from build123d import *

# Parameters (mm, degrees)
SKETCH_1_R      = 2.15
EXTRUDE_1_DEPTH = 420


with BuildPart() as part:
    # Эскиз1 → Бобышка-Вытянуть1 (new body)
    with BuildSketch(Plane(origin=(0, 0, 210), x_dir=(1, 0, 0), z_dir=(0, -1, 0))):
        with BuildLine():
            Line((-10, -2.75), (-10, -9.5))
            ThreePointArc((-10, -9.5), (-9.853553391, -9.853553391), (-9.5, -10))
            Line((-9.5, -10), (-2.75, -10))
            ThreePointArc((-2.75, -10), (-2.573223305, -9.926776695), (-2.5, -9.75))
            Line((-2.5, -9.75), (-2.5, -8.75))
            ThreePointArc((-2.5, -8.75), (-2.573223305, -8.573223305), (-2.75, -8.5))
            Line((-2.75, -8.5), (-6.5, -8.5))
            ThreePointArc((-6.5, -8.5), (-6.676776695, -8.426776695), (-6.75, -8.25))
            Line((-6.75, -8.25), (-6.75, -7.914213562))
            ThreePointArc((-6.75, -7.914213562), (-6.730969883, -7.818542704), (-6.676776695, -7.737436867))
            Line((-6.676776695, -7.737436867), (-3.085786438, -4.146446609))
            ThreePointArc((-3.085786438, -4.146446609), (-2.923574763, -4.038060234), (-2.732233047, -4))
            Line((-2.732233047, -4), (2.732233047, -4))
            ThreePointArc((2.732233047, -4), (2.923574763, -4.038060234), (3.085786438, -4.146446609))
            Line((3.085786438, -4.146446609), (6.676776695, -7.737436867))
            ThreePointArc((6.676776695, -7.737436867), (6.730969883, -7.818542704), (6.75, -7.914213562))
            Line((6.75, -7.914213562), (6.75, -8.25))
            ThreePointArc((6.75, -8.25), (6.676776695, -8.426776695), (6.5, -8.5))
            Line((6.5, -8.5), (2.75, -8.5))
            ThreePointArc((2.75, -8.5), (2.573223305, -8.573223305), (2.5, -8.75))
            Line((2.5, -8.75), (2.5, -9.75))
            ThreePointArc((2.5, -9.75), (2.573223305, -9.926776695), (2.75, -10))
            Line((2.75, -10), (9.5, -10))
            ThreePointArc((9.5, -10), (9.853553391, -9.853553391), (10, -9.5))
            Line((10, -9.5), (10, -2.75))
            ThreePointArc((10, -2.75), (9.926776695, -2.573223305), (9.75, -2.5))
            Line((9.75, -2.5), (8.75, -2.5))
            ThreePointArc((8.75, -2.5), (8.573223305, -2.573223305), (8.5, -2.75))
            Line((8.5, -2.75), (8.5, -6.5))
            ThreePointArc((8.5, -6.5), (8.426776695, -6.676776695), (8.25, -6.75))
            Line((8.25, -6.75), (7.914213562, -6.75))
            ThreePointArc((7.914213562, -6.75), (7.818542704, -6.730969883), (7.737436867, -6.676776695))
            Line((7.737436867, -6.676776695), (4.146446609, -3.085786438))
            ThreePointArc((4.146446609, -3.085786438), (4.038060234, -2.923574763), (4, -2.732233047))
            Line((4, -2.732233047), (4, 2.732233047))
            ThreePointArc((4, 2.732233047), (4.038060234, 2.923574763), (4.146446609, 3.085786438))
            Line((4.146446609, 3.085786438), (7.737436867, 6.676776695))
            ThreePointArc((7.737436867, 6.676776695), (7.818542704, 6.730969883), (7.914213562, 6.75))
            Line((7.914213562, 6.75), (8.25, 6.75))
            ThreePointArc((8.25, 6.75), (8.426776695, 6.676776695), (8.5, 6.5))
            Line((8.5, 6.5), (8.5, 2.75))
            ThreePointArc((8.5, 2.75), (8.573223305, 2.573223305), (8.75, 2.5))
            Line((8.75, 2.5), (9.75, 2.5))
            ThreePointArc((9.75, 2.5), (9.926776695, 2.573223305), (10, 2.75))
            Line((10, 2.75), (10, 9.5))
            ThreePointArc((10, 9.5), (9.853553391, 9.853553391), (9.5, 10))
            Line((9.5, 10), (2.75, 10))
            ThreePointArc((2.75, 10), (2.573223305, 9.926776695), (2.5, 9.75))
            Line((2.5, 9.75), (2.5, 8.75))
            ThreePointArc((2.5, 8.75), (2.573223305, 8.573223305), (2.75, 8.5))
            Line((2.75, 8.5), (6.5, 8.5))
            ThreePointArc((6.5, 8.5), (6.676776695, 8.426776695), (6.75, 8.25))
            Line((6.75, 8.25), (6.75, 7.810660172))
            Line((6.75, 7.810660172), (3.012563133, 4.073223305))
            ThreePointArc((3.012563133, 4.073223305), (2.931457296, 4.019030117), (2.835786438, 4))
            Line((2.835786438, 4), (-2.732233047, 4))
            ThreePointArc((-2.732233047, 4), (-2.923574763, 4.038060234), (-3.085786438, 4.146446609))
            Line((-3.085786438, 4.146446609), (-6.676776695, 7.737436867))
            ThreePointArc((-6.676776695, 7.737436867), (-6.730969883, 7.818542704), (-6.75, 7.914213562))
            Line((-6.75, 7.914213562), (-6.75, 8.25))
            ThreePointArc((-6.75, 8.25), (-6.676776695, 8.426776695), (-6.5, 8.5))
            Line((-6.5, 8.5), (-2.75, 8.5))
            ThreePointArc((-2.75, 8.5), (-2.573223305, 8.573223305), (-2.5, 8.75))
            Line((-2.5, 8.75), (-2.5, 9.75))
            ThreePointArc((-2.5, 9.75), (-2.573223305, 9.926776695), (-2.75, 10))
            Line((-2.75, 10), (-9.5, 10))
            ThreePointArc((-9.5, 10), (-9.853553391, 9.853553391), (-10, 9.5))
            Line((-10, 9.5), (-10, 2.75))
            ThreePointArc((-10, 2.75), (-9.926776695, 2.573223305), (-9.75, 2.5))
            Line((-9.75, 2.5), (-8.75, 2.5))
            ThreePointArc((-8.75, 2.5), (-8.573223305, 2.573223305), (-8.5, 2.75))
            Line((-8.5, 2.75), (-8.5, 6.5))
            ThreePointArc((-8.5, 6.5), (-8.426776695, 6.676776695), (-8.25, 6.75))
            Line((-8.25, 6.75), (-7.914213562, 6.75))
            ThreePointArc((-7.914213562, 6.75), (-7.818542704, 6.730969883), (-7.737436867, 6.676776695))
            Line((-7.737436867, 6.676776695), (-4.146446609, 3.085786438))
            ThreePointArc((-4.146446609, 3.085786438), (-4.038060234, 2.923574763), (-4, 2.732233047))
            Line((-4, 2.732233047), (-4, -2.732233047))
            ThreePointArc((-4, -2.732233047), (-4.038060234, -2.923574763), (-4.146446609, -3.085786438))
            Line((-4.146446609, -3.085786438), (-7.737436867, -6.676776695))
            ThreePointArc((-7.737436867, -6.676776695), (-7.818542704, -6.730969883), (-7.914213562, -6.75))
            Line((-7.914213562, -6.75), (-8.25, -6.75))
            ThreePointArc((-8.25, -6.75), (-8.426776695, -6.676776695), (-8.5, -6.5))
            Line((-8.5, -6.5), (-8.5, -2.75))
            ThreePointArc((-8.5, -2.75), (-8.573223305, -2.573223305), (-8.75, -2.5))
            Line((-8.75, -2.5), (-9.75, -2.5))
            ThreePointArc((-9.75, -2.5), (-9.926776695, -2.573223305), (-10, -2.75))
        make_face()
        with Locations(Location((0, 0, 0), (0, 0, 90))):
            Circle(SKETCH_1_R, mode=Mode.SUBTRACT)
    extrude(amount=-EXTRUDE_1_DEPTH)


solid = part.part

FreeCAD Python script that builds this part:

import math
import FreeCAD as App
import Part
import Sketcher
from FreeCAD import Vector
Q = App.Units.Quantity

doc = App.newDocument("Part")
body = doc.addObject("PartDesign::Body", "Body")

# Sketch on XZ plane
sketch1 = doc.addObject("Sketcher::SketchObject", "Sketch")
body.addObject(sketch1)
sketch1.AttachmentSupport = (doc.XZ_Plane, [""])
sketch1.MapMode = "FlatFace"
sketch1.addGeometry(Part.LineSegment(Vector(-10, 207.25, 0), Vector(-10, 200.5, 0)), False)
sketch1.addGeometry(Part.ArcOfCircle(Part.Circle(Vector(-9.5, 200.5, 0), Vector(0, 0, 1), 0.5), math.radians(180), math.radians(270)), False)
sketch1.addGeometry(Part.LineSegment(Vector(-9.5, 200, 0), Vector(-2.75, 200, 0)), False)
sketch1.addGeometry(Part.ArcOfCircle(Part.Circle(Vector(-2.75, 200.25, 0), Vector(0, 0, 1), 0.25), math.radians(-90), math.radians(0)), False)
sketch1.addGeometry(Part.LineSegment(Vector(-2.5, 200.25, 0), Vector(-2.5, 201.25, 0)), False)
sketch1.addGeometry(Part.ArcOfCircle(Part.Circle(Vector(-2.75, 201.25, 0), Vector(0, 0, 1), 0.25), math.radians(0), math.radians(90)), False)
sketch1.addGeometry(Part.LineSegment(Vector(-2.75, 201.5, 0), Vector(-6.5, 201.5, 0)), False)
sketch1.addGeometry(Part.ArcOfCircle(Part.Circle(Vector(-6.5, 201.75, 0), Vector(0, 0, 1), 0.25), math.radians(-180), math.radians(-90)), False)
sketch1.addGeometry(Part.LineSegment(Vector(-6.75, 201.75, 0), Vector(-6.75, 202.085786, 0)), False)
sketch1.addGeometry(Part.ArcOfCircle(Part.Circle(Vector(-6.5, 202.085786, 0), Vector(0, 0, 1), 0.25), math.radians(135), math.radians(180)), False)
sketch1.addGeometry(Part.LineSegment(Vector(-6.676777, 202.262563, 0), Vector(-3.085786, 205.853553, 0)), False)
sketch1.addGeometry(Part.ArcOfCircle(Part.Circle(Vector(-2.732233, 205.5, 0), Vector(0, 0, 1), 0.5), math.radians(90), math.radians(135)), False)
sketch1.addGeometry(Part.LineSegment(Vector(-2.732233, 206, 0), Vector(2.732233, 206, 0)), False)
sketch1.addGeometry(Part.ArcOfCircle(Part.Circle(Vector(2.732233, 205.5, 0), Vector(0, 0, 1), 0.5), math.radians(45), math.radians(90)), False)
sketch1.addGeometry(Part.LineSegment(Vector(3.085786, 205.853553, 0), Vector(6.676777, 202.262563, 0)), False)
sketch1.addGeometry(Part.ArcOfCircle(Part.Circle(Vector(6.5, 202.085786, 0), Vector(0, 0, 1), 0.25), math.radians(0), math.radians(45)), False)
sketch1.addGeometry(Part.LineSegment(Vector(6.75, 202.085786, 0), Vector(6.75, 201.75, 0)), False)
sketch1.addGeometry(Part.ArcOfCircle(Part.Circle(Vector(6.5, 201.75, 0), Vector(0, 0, 1), 0.25), math.radians(-90), math.radians(0)), False)
sketch1.addGeometry(Part.LineSegment(Vector(6.5, 201.5, 0), Vector(2.75, 201.5, 0)), False)
sketch1.addGeometry(Part.ArcOfCircle(Part.Circle(Vector(2.75, 201.25, 0), Vector(0, 0, 1), 0.25), math.radians(90), math.radians(180)), False)
sketch1.addGeometry(Part.LineSegment(Vector(2.5, 201.25, 0), Vector(2.5, 200.25, 0)), False)
sketch1.addGeometry(Part.ArcOfCircle(Part.Circle(Vector(2.75, 200.25, 0), Vector(0, 0, 1), 0.25), math.radians(-180), math.radians(-90)), False)
sketch1.addGeometry(Part.LineSegment(Vector(2.75, 200, 0), Vector(9.5, 200, 0)), False)
sketch1.addGeometry(Part.ArcOfCircle(Part.Circle(Vector(9.5, 200.5, 0), Vector(0, 0, 1), 0.5), math.radians(-90), math.radians(0)), False)
sketch1.addGeometry(Part.LineSegment(Vector(10, 200.5, 0), Vector(10, 207.25, 0)), False)
sketch1.addGeometry(Part.ArcOfCircle(Part.Circle(Vector(9.75, 207.25, 0), Vector(0, 0, 1), 0.25), math.radians(0), math.radians(90)), False)
sketch1.addGeometry(Part.LineSegment(Vector(9.75, 207.5, 0), Vector(8.75, 207.5, 0)), False)
sketch1.addGeometry(Part.ArcOfCircle(Part.Circle(Vector(8.75, 207.25, 0), Vector(0, 0, 1), 0.25), math.radians(90), math.radians(180)), False)
sketch1.addGeometry(Part.LineSegment(Vector(8.5, 207.25, 0), Vector(8.5, 203.5, 0)), False)
sketch1.addGeometry(Part.ArcOfCircle(Part.Circle(Vector(8.25, 203.5, 0), Vector(0, 0, 1), 0.25), math.radians(-90), math.radians(0)), False)
sketch1.addGeometry(Part.LineSegment(Vector(8.25, 203.25, 0), Vector(7.914214, 203.25, 0)), False)
sketch1.addGeometry(Part.ArcOfCircle(Part.Circle(Vector(7.914214, 203.5, 0), Vector(0, 0, 1), 0.25), math.radians(-135), math.radians(-90)), False)
sketch1.addGeometry(Part.LineSegment(Vector(7.737437, 203.323223, 0), Vector(4.146447, 206.914214, 0)), False)
sketch1.addGeometry(Part.ArcOfCircle(Part.Circle(Vector(4.5, 207.267767, 0), Vector(0, 0, 1), 0.5), math.radians(-180), math.radians(-135)), False)
sketch1.addGeometry(Part.LineSegment(Vector(4, 207.267767, 0), Vector(4, 212.732233, 0)), False)
sketch1.addGeometry(Part.ArcOfCircle(Part.Circle(Vector(4.5, 212.732233, 0), Vector(0, 0, 1), 0.5), math.radians(135), math.radians(180)), False)
sketch1.addGeometry(Part.LineSegment(Vector(4.146447, 213.085786, 0), Vector(7.737437, 216.676777, 0)), False)
sketch1.addGeometry(Part.ArcOfCircle(Part.Circle(Vector(7.914214, 216.5, 0), Vector(0, 0, 1), 0.25), math.radians(90), math.radians(135)), False)
sketch1.addGeometry(Part.LineSegment(Vector(7.914214, 216.75, 0), Vector(8.25, 216.75, 0)), False)
sketch1.addGeometry(Part.ArcOfCircle(Part.Circle(Vector(8.25, 216.5, 0), Vector(0, 0, 1), 0.25), math.radians(0), math.radians(90)), False)
sketch1.addGeometry(Part.LineSegment(Vector(8.5, 216.5, 0), Vector(8.5, 212.75, 0)), False)
sketch1.addGeometry(Part.ArcOfCircle(Part.Circle(Vector(8.75, 212.75, 0), Vector(0, 0, 1), 0.25), math.radians(-180), math.radians(-90)), False)
sketch1.addGeometry(Part.LineSegment(Vector(8.75, 212.5, 0), Vector(9.75, 212.5, 0)), False)
sketch1.addGeometry(Part.ArcOfCircle(Part.Circle(Vector(9.75, 212.75, 0), Vector(0, 0, 1), 0.25), math.radians(-90), math.radians(0)), False)
sketch1.addGeometry(Part.LineSegment(Vector(10, 212.75, 0), Vector(10, 219.5, 0)), False)
sketch1.addGeometry(Part.ArcOfCircle(Part.Circle(Vector(9.5, 219.5, 0), Vector(0, 0, 1), 0.5), math.radians(0), math.radians(90)), False)
sketch1.addGeometry(Part.LineSegment(Vector(9.5, 220, 0), Vector(2.75, 220, 0)), False)
sketch1.addGeometry(Part.ArcOfCircle(Part.Circle(Vector(2.75, 219.75, 0), Vector(0, 0, 1), 0.25), math.radians(90), math.radians(180)), False)
sketch1.addGeometry(Part.LineSegment(Vector(2.5, 219.75, 0), Vector(2.5, 218.75, 0)), False)
sketch1.addGeometry(Part.ArcOfCircle(Part.Circle(Vector(2.75, 218.75, 0), Vector(0, 0, 1), 0.25), math.radians(-180), math.radians(-90)), False)
sketch1.addGeometry(Part.LineSegment(Vector(2.75, 218.5, 0), Vector(6.5, 218.5, 0)), False)
sketch1.addGeometry(Part.ArcOfCircle(Part.Circle(Vector(6.5, 218.25, 0), Vector(0, 0, 1), 0.25), math.radians(0), math.radians(90)), False)
sketch1.addGeometry(Part.LineSegment(Vector(6.75, 218.25, 0), Vector(6.75, 217.81066, 0)), False)
sketch1.addGeometry(Part.LineSegment(Vector(6.75, 217.81066, 0), Vector(3.012563, 214.073223, 0)), False)
sketch1.addGeometry(Part.ArcOfCircle(Part.Circle(Vector(2.835786, 214.25, 0), Vector(0, 0, 1), 0.25), math.radians(-90), math.radians(-45)), False)
sketch1.addGeometry(Part.LineSegment(Vector(2.835786, 214, 0), Vector(-2.732233, 214, 0)), False)
sketch1.addGeometry(Part.ArcOfCircle(Part.Circle(Vector(-2.732233, 214.5, 0), Vector(0, 0, 1), 0.5), math.radians(-135), math.radians(-90)), False)
sketch1.addGeometry(Part.LineSegment(Vector(-3.085786, 214.146447, 0), Vector(-6.676777, 217.737437, 0)), False)
sketch1.addGeometry(Part.ArcOfCircle(Part.Circle(Vector(-6.5, 217.914214, 0), Vector(0, 0, 1), 0.25), math.radians(180), math.radians(225)), False)
sketch1.addGeometry(Part.LineSegment(Vector(-6.75, 217.914214, 0), Vector(-6.75, 218.25, 0)), False)
sketch1.addGeometry(Part.ArcOfCircle(Part.Circle(Vector(-6.5, 218.25, 0), Vector(0, 0, 1), 0.25), math.radians(90), math.radians(180)), False)
sketch1.addGeometry(Part.LineSegment(Vector(-6.5, 218.5, 0), Vector(-2.75, 218.5, 0)), False)
sketch1.addGeometry(Part.ArcOfCircle(Part.Circle(Vector(-2.75, 218.75, 0), Vector(0, 0, 1), 0.25), math.radians(-90), math.radians(0)), False)
sketch1.addGeometry(Part.LineSegment(Vector(-2.5, 218.75, 0), Vector(-2.5, 219.75, 0)), False)
sketch1.addGeometry(Part.ArcOfCircle(Part.Circle(Vector(-2.75, 219.75, 0), Vector(0, 0, 1), 0.25), math.radians(0), math.radians(90)), False)
sketch1.addGeometry(Part.LineSegment(Vector(-2.75, 220, 0), Vector(-9.5, 220, 0)), False)
sketch1.addGeometry(Part.ArcOfCircle(Part.Circle(Vector(-9.5, 219.5, 0), Vector(0, 0, 1), 0.5), math.radians(90), math.radians(180)), False)
sketch1.addGeometry(Part.LineSegment(Vector(-10, 219.5, 0), Vector(-10, 212.75, 0)), False)
sketch1.addGeometry(Part.ArcOfCircle(Part.Circle(Vector(-9.75, 212.75, 0), Vector(0, 0, 1), 0.25), math.radians(-180), math.radians(-90)), False)
sketch1.addGeometry(Part.LineSegment(Vector(-9.75, 212.5, 0), Vector(-8.75, 212.5, 0)), False)
sketch1.addGeometry(Part.ArcOfCircle(Part.Circle(Vector(-8.75, 212.75, 0), Vector(0, 0, 1), 0.25), math.radians(-90), math.radians(0)), False)
sketch1.addGeometry(Part.LineSegment(Vector(-8.5, 212.75, 0), Vector(-8.5, 216.5, 0)), False)
sketch1.addGeometry(Part.ArcOfCircle(Part.Circle(Vector(-8.25, 216.5, 0), Vector(0, 0, 1), 0.25), math.radians(90), math.radians(180)), False)
sketch1.addGeometry(Part.LineSegment(Vector(-8.25, 216.75, 0), Vector(-7.914214, 216.75, 0)), False)
sketch1.addGeometry(Part.ArcOfCircle(Part.Circle(Vector(-7.914214, 216.5, 0), Vector(0, 0, 1), 0.25), math.radians(45), math.radians(90)), False)
sketch1.addGeometry(Part.LineSegment(Vector(-7.737437, 216.676777, 0), Vector(-4.146447, 213.085786, 0)), False)
sketch1.addGeometry(Part.ArcOfCircle(Part.Circle(Vector(-4.5, 212.732233, 0), Vector(0, 0, 1), 0.5), math.radians(0), math.radians(45)), False)
sketch1.addGeometry(Part.LineSegment(Vector(-4, 212.732233, 0), Vector(-4, 207.267767, 0)), False)
sketch1.addGeometry(Part.ArcOfCircle(Part.Circle(Vector(-4.5, 207.267767, 0), Vector(0, 0, 1), 0.5), math.radians(-45), math.radians(0)), False)
sketch1.addGeometry(Part.LineSegment(Vector(-4.146447, 206.914214, 0), Vector(-7.737437, 203.323223, 0)), False)
sketch1.addGeometry(Part.ArcOfCircle(Part.Circle(Vector(-7.914214, 203.5, 0), Vector(0, 0, 1), 0.25), math.radians(-90), math.radians(-45)), False)
sketch1.addGeometry(Part.LineSegment(Vector(-7.914214, 203.25, 0), Vector(-8.25, 203.25, 0)), False)
sketch1.addGeometry(Part.ArcOfCircle(Part.Circle(Vector(-8.25, 203.5, 0), Vector(0, 0, 1), 0.25), math.radians(-180), math.radians(-90)), False)
sketch1.addGeometry(Part.LineSegment(Vector(-8.5, 203.5, 0), Vector(-8.5, 207.25, 0)), False)
sketch1.addGeometry(Part.ArcOfCircle(Part.Circle(Vector(-8.75, 207.25, 0), Vector(0, 0, 1), 0.25), math.radians(0), math.radians(90)), False)
sketch1.addGeometry(Part.LineSegment(Vector(-8.75, 207.5, 0), Vector(-9.75, 207.5, 0)), False)
sketch1.addGeometry(Part.ArcOfCircle(Part.Circle(Vector(-9.75, 207.25, 0), Vector(0, 0, 1), 0.25), math.radians(90), math.radians(180)), False)
sketch1.addGeometry(Part.Circle(Vector(0, 210, 0), Vector(0, 0, 1), 2.15), False)
sketch1.addConstraint(Sketcher.Constraint("Tangent", 0, 2, 1, 1))
sketch1.addConstraint(Sketcher.Constraint("Tangent", 1, 2, 2, 1))
sketch1.addConstraint(Sketcher.Constraint("Tangent", 2, 2, 3, 1))
sketch1.addConstraint(Sketcher.Constraint("Tangent", 3, 2, 4, 1))
sketch1.addConstraint(Sketcher.Constraint("Tangent", 4, 2, 5, 1))
sketch1.addConstraint(Sketcher.Constraint("Tangent", 5, 2, 6, 1))
sketch1.addConstraint(Sketcher.Constraint("Tangent", 6, 2, 7, 2))
sketch1.addConstraint(Sketcher.Constraint("Tangent", 7, 1, 8, 1))
sketch1.addConstraint(Sketcher.Constraint("Tangent", 8, 2, 9, 2))
sketch1.addConstraint(Sketcher.Constraint("Tangent", 9, 1, 10, 1))
sketch1.addConstraint(Sketcher.Constraint("Tangent", 10, 2, 11, 2))
sketch1.addConstraint(Sketcher.Constraint("Tangent", 11, 1, 12, 1))
sketch1.addConstraint(Sketcher.Constraint("Tangent", 12, 2, 13, 2))
sketch1.addConstraint(Sketcher.Constraint("Tangent", 13, 1, 14, 1))
sketch1.addConstraint(Sketcher.Constraint("Tangent", 14, 2, 15, 2))
sketch1.addConstraint(Sketcher.Constraint("Tangent", 15, 1, 16, 1))
sketch1.addConstraint(Sketcher.Constraint("Tangent", 16, 2, 17, 2))
sketch1.addConstraint(Sketcher.Constraint("Tangent", 17, 1, 18, 1))
sketch1.addConstraint(Sketcher.Constraint("Tangent", 18, 2, 19, 1))
sketch1.addConstraint(Sketcher.Constraint("Tangent", 19, 2, 20, 1))
sketch1.addConstraint(Sketcher.Constraint("Tangent", 20, 2, 21, 1))
sketch1.addConstraint(Sketcher.Constraint("Tangent", 21, 2, 22, 1))
sketch1.addConstraint(Sketcher.Constraint("Tangent", 22, 2, 23, 1))
sketch1.addConstraint(Sketcher.Constraint("Tangent", 23, 2, 24, 1))
sketch1.addConstraint(Sketcher.Constraint("Tangent", 24, 2, 25, 1))
sketch1.addConstraint(Sketcher.Constraint("Tangent", 25, 2, 26, 1))
sketch1.addConstraint(Sketcher.Constraint("Tangent", 26, 2, 27, 1))
sketch1.addConstraint(Sketcher.Constraint("Tangent", 27, 2, 28, 1))
sketch1.addConstraint(Sketcher.Constraint("Tangent", 28, 2, 29, 2))
sketch1.addConstraint(Sketcher.Constraint("Tangent", 29, 1, 30, 1))
sketch1.addConstraint(Sketcher.Constraint("Tangent", 30, 2, 31, 2))
sketch1.addConstraint(Sketcher.Constraint("Tangent", 31, 1, 32, 1))
sketch1.addConstraint(Sketcher.Constraint("Tangent", 32, 2, 33, 2))
sketch1.addConstraint(Sketcher.Constraint("Tangent", 33, 1, 34, 1))
sketch1.addConstraint(Sketcher.Constraint("Tangent", 34, 2, 35, 2))
sketch1.addConstraint(Sketcher.Constraint("Tangent", 35, 1, 36, 1))
sketch1.addConstraint(Sketcher.Constraint("Tangent", 36, 2, 37, 2))
sketch1.addConstraint(Sketcher.Constraint("Tangent", 37, 1, 38, 1))
sketch1.addConstraint(Sketcher.Constraint("Tangent", 38, 2, 39, 2))
sketch1.addConstraint(Sketcher.Constraint("Tangent", 39, 1, 40, 1))
sketch1.addConstraint(Sketcher.Constraint("Tangent", 40, 2, 41, 1))
sketch1.addConstraint(Sketcher.Constraint("Tangent", 41, 2, 42, 1))
sketch1.addConstraint(Sketcher.Constraint("Tangent", 42, 2, 43, 1))
sketch1.addConstraint(Sketcher.Constraint("Tangent", 43, 2, 44, 1))
sketch1.addConstraint(Sketcher.Constraint("Tangent", 44, 2, 45, 1))
sketch1.addConstraint(Sketcher.Constraint("Tangent", 45, 2, 46, 1))
sketch1.addConstraint(Sketcher.Constraint("Tangent", 46, 2, 47, 1))
sketch1.addConstraint(Sketcher.Constraint("Tangent", 47, 2, 48, 1))
sketch1.addConstraint(Sketcher.Constraint("Tangent", 48, 2, 49, 1))
sketch1.addConstraint(Sketcher.Constraint("Tangent", 49, 2, 50, 1))
sketch1.addConstraint(Sketcher.Constraint("Tangent", 50, 2, 51, 2))
sketch1.addConstraint(Sketcher.Constraint("Tangent", 51, 1, 52, 1))
sketch1.addConstraint(Sketcher.Constraint("Coincident", 52, 2, 53, 1))
sketch1.addConstraint(Sketcher.Constraint("Tangent", 53, 2, 54, 2))
sketch1.addConstraint(Sketcher.Constraint("Tangent", 54, 1, 55, 1))
sketch1.addConstraint(Sketcher.Constraint("Tangent", 55, 2, 56, 2))
sketch1.addConstraint(Sketcher.Constraint("Tangent", 56, 1, 57, 1))
sketch1.addConstraint(Sketcher.Constraint("Tangent", 57, 2, 58, 2))
sketch1.addConstraint(Sketcher.Constraint("Tangent", 58, 1, 59, 1))
sketch1.addConstraint(Sketcher.Constraint("Tangent", 59, 2, 60, 2))
sketch1.addConstraint(Sketcher.Constraint("Tangent", 60, 1, 61, 1))
sketch1.addConstraint(Sketcher.Constraint("Tangent", 61, 2, 62, 1))
sketch1.addConstraint(Sketcher.Constraint("Tangent", 62, 2, 63, 1))
sketch1.addConstraint(Sketcher.Constraint("Tangent", 63, 2, 64, 1))
sketch1.addConstraint(Sketcher.Constraint("Tangent", 64, 2, 65, 1))
sketch1.addConstraint(Sketcher.Constraint("Tangent", 65, 2, 66, 1))
sketch1.addConstraint(Sketcher.Constraint("Tangent", 66, 2, 67, 1))
sketch1.addConstraint(Sketcher.Constraint("Tangent", 67, 2, 68, 1))
sketch1.addConstraint(Sketcher.Constraint("Tangent", 68, 2, 69, 1))
sketch1.addConstraint(Sketcher.Constraint("Tangent", 69, 2, 70, 1))
sketch1.addConstraint(Sketcher.Constraint("Tangent", 70, 2, 71, 1))
sketch1.addConstraint(Sketcher.Constraint("Tangent", 71, 2, 72, 2))
sketch1.addConstraint(Sketcher.Constraint("Tangent", 72, 1, 73, 1))
sketch1.addConstraint(Sketcher.Constraint("Tangent", 73, 2, 74, 2))
sketch1.addConstraint(Sketcher.Constraint("Tangent", 74, 1, 75, 1))
sketch1.addConstraint(Sketcher.Constraint("Tangent", 75, 2, 76, 2))
sketch1.addConstraint(Sketcher.Constraint("Tangent", 76, 1, 77, 1))
sketch1.addConstraint(Sketcher.Constraint("Tangent", 77, 2, 78, 2))
sketch1.addConstraint(Sketcher.Constraint("Tangent", 78, 1, 79, 1))
sketch1.addConstraint(Sketcher.Constraint("Tangent", 79, 2, 80, 2))
sketch1.addConstraint(Sketcher.Constraint("Tangent", 80, 1, 81, 1))
sketch1.addConstraint(Sketcher.Constraint("Tangent", 81, 2, 82, 2))
sketch1.addConstraint(Sketcher.Constraint("Tangent", 82, 1, 83, 1))
sketch1.addConstraint(Sketcher.Constraint("Tangent", 83, 2, 84, 1))
sketch1.addConstraint(Sketcher.Constraint("Tangent", 84, 2, 85, 1))
sketch1.addConstraint(Sketcher.Constraint("Tangent", 85, 2, 86, 1))
sketch1.addConstraint(Sketcher.Constraint("Tangent", 86, 2, 0, 1))
sketch1.addConstraint(Sketcher.Constraint("Vertical", 0))
sketch1.addConstraint(Sketcher.Constraint("Horizontal", 2))
sketch1.addConstraint(Sketcher.Constraint("Vertical", 4))
sketch1.addConstraint(Sketcher.Constraint("Horizontal", 6))
sketch1.addConstraint(Sketcher.Constraint("Vertical", 8))
sketch1.addConstraint(Sketcher.Constraint("Horizontal", 12))
sketch1.addConstraint(Sketcher.Constraint("Vertical", 16))
sketch1.addConstraint(Sketcher.Constraint("Horizontal", 18))
sketch1.addConstraint(Sketcher.Constraint("Vertical", 20))
sketch1.addConstraint(Sketcher.Constraint("Horizontal", 22))
sketch1.addConstraint(Sketcher.Constraint("Vertical", 24))
sketch1.addConstraint(Sketcher.Constraint("Horizontal", 26))
sketch1.addConstraint(Sketcher.Constraint("Vertical", 28))
sketch1.addConstraint(Sketcher.Constraint("Horizontal", 30))
sketch1.addConstraint(Sketcher.Constraint("Vertical", 34))
sketch1.addConstraint(Sketcher.Constraint("Horizontal", 38))
sketch1.addConstraint(Sketcher.Constraint("Vertical", 40))
sketch1.addConstraint(Sketcher.Constraint("Horizontal", 42))
sketch1.addConstraint(Sketcher.Constraint("Vertical", 44))
sketch1.addConstraint(Sketcher.Constraint("Horizontal", 46))
sketch1.addConstraint(Sketcher.Constraint("Vertical", 48))
sketch1.addConstraint(Sketcher.Constraint("Horizontal", 50))
sketch1.addConstraint(Sketcher.Constraint("Vertical", 52))
sketch1.addConstraint(Sketcher.Constraint("Horizontal", 55))
sketch1.addConstraint(Sketcher.Constraint("Vertical", 59))
sketch1.addConstraint(Sketcher.Constraint("Horizontal", 61))
sketch1.addConstraint(Sketcher.Constraint("Vertical", 63))
sketch1.addConstraint(Sketcher.Constraint("Horizontal", 65))
sketch1.addConstraint(Sketcher.Constraint("Vertical", 67))
sketch1.addConstraint(Sketcher.Constraint("Horizontal", 69))
sketch1.addConstraint(Sketcher.Constraint("Vertical", 71))
sketch1.addConstraint(Sketcher.Constraint("Horizontal", 73))
sketch1.addConstraint(Sketcher.Constraint("Vertical", 77))
sketch1.addConstraint(Sketcher.Constraint("Horizontal", 81))
sketch1.addConstraint(Sketcher.Constraint("Vertical", 83))
sketch1.addConstraint(Sketcher.Constraint("Horizontal", 85))
sketch1.addConstraint(Sketcher.Constraint("Equal", 3, 5))
sketch1.addConstraint(Sketcher.Constraint("Equal", 5, 7))
sketch1.addConstraint(Sketcher.Constraint("Equal", 7, 9))
sketch1.addConstraint(Sketcher.Constraint("Equal", 1, 11))
sketch1.addConstraint(Sketcher.Constraint("Equal", 11, 13))
sketch1.addConstraint(Sketcher.Constraint("Equal", 9, 15))
sketch1.addConstraint(Sketcher.Constraint("Equal", 15, 17))
sketch1.addConstraint(Sketcher.Constraint("Equal", 17, 19))
sketch1.addConstraint(Sketcher.Constraint("Equal", 19, 21))
sketch1.addConstraint(Sketcher.Constraint("Equal", 13, 23))
sketch1.addConstraint(Sketcher.Constraint("Equal", 21, 25))
sketch1.addConstraint(Sketcher.Constraint("Equal", 25, 27))
sketch1.addConstraint(Sketcher.Constraint("Equal", 27, 29))
sketch1.addConstraint(Sketcher.Constraint("Equal", 29, 31))
sketch1.addConstraint(Sketcher.Constraint("Equal", 23, 33))
sketch1.addConstraint(Sketcher.Constraint("Equal", 33, 35))
sketch1.addConstraint(Sketcher.Constraint("Equal", 31, 37))
sketch1.addConstraint(Sketcher.Constraint("Equal", 37, 39))
sketch1.addConstraint(Sketcher.Constraint("Equal", 39, 41))
sketch1.addConstraint(Sketcher.Constraint("Equal", 41, 43))
sketch1.addConstraint(Sketcher.Constraint("Equal", 35, 45))
sketch1.addConstraint(Sketcher.Constraint("Equal", 43, 47))
sketch1.addConstraint(Sketcher.Constraint("Equal", 47, 49))
sketch1.addConstraint(Sketcher.Constraint("Equal", 49, 51))
sketch1.addConstraint(Sketcher.Constraint("Equal", 51, 54))
sketch1.addConstraint(Sketcher.Constraint("Equal", 45, 56))
sketch1.addConstraint(Sketcher.Constraint("Equal", 54, 58))
sketch1.addConstraint(Sketcher.Constraint("Equal", 58, 60))
sketch1.addConstraint(Sketcher.Constraint("Equal", 60, 62))
sketch1.addConstraint(Sketcher.Constraint("Equal", 62, 64))
sketch1.addConstraint(Sketcher.Constraint("Equal", 56, 66))
sketch1.addConstraint(Sketcher.Constraint("Equal", 64, 68))
sketch1.addConstraint(Sketcher.Constraint("Equal", 68, 70))
sketch1.addConstraint(Sketcher.Constraint("Equal", 70, 72))
sketch1.addConstraint(Sketcher.Constraint("Equal", 72, 74))
sketch1.addConstraint(Sketcher.Constraint("Equal", 66, 76))
sketch1.addConstraint(Sketcher.Constraint("Equal", 76, 78))
sketch1.addConstraint(Sketcher.Constraint("Equal", 74, 80))
sketch1.addConstraint(Sketcher.Constraint("Equal", 80, 82))
sketch1.addConstraint(Sketcher.Constraint("Equal", 82, 84))
sketch1.addConstraint(Sketcher.Constraint("Equal", 84, 86))
sketch1.addConstraint(Sketcher.Constraint("Symmetric", 9, 3, 15, 3, -2))
sketch1.addConstraint(Sketcher.Constraint("Symmetric", 5, 3, 19, 3, -2))
sketch1.addConstraint(Sketcher.Constraint("Symmetric", 1, 3, 23, 3, -2))
sketch1.addConstraint(Sketcher.Constraint("Symmetric", 51, 3, 60, 3, -2))
sketch1.addConstraint(Sketcher.Constraint("Symmetric", 47, 3, 64, 3, -2))
sketch1.addConstraint(Sketcher.Constraint("Symmetric", 43, 3, 68, 3, -2))
sketch1.addConstraint(Sketcher.Constraint("Symmetric", 39, 3, 72, 3, -2))
sketch1.addConstraint(Sketcher.Constraint("Symmetric", 35, 3, 76, 3, -2))
sketch1.addConstraint(Sketcher.Constraint("Symmetric", 31, 3, 80, 3, -2))
sketch1.addConstraint(Sketcher.Constraint("Symmetric", 27, 3, 84, 3, -2))
sketch1.addConstraint(Sketcher.Constraint("PointOnObject", 87, 3, -2))
sketch1.addConstraint(Sketcher.Constraint("Perpendicular", 10, 14))
sketch1.addConstraint(Sketcher.Constraint("Parallel", 14, 32))
sketch1.addConstraint(Sketcher.Constraint("Perpendicular", 32, 36))
sketch1.addConstraint(Sketcher.Constraint("Parallel", 36, 53))
sketch1.addConstraint(Sketcher.Constraint("Perpendicular", 53, 57))
sketch1.addConstraint(Sketcher.Constraint("Parallel", 57, 75))
sketch1.addConstraint(Sketcher.Constraint("Perpendicular", 75, 79))
sketch1.addConstraint(Sketcher.Constraint("Horizontal", 33, 3, 78, 3))
sketch1.addConstraint(Sketcher.Constraint("Vertical", 31, 3, 37, 3))
sketch1.addConstraint(Sketcher.Constraint("Vertical", 29, 3, 39, 3))
sketch1.addConstraint(Sketcher.Constraint("Vertical", 25, 3, 43, 3))
sketch1.addConstraint(Sketcher.Constraint("Vertical", 21, 3, 47, 3))
sketch1.addConstraint(Sketcher.Constraint("Vertical", 17, 3, 51, 3))
sketch1.addConstraint(Sketcher.Constraint("Vertical", 11, 3, 56, 3))
sketch1.addConstraint(Sketcher.Constraint("Equal", 65, 0))
sketch1.addConstraint(Sketcher.Constraint("Equal", 85, 4))
sketch1.addConstraint(Sketcher.Constraint("Equal", 81, 8))
sketch1.addConstraint(Sketcher.Constraint("Equal", 61, 28))
sketch1.addConstraint(Sketcher.Constraint("Equal", 12, 34))
sketch1.addConstraint(Sketcher.Constraint("Equal", 28, 40))
sketch1.addConstraint(Sketcher.Constraint("Equal", 24, 44))
sketch1.addConstraint(Sketcher.Constraint("Equal", 20, 48))
sketch1.addConstraint(Sketcher.Constraint("Equal", 16, 59))
sketch1.addConstraint(Sketcher.Constraint("Equal", 14, 32))
sketch1.addConstraint(Sketcher.Constraint("Diameter", 87, Q("4.3 mm")))
sketch1.addConstraint(Sketcher.Constraint("Radius", 1, Q("0.5 mm")))
sketch1.addConstraint(Sketcher.Constraint("DistanceX", 26, 2, 26, 1, Q("1 mm")))
sketch1.addConstraint(Sketcher.Constraint("Radius", 3, Q("0.25 mm")))
sketch1.addConstraint(Sketcher.Constraint("DistanceY", -1, 1, 87, 3, Q("210 mm")))
sketch1.addConstraint(Sketcher.Constraint("DistanceX", 0, 2, -1, 1, Q("10 mm")))
sketch1.addConstraint(Sketcher.Constraint("DistanceY", -1, 1, 1, 2, Q("200 mm")))
sketch1.addConstraint(Sketcher.Constraint("DistanceY", -1, 1, 11, 1, Q("206 mm")))
sketch1.addConstraint(Sketcher.Constraint("DistanceX", 2, 1, 2, 2, Q("6.75 mm")))
sketch1.addConstraint(Sketcher.Constraint("DistanceX", 6, 2, 6, 1, Q("3.75 mm")))
sketch1.addConstraint(Sketcher.Constraint("DistanceX", 55, 2, 55, 1, Q("5.568019 mm")))
sketch1.addConstraint(Sketcher.Constraint("DistanceY", 52, 2, 52, 1, Q("0.43934 mm")))
pad1 = doc.addObject("PartDesign::Pad", "Pad")
body.addObject(pad1)
pad1.Profile = sketch1
pad1.Length = 420
pad1.Reversed = True

doc.recompute()
